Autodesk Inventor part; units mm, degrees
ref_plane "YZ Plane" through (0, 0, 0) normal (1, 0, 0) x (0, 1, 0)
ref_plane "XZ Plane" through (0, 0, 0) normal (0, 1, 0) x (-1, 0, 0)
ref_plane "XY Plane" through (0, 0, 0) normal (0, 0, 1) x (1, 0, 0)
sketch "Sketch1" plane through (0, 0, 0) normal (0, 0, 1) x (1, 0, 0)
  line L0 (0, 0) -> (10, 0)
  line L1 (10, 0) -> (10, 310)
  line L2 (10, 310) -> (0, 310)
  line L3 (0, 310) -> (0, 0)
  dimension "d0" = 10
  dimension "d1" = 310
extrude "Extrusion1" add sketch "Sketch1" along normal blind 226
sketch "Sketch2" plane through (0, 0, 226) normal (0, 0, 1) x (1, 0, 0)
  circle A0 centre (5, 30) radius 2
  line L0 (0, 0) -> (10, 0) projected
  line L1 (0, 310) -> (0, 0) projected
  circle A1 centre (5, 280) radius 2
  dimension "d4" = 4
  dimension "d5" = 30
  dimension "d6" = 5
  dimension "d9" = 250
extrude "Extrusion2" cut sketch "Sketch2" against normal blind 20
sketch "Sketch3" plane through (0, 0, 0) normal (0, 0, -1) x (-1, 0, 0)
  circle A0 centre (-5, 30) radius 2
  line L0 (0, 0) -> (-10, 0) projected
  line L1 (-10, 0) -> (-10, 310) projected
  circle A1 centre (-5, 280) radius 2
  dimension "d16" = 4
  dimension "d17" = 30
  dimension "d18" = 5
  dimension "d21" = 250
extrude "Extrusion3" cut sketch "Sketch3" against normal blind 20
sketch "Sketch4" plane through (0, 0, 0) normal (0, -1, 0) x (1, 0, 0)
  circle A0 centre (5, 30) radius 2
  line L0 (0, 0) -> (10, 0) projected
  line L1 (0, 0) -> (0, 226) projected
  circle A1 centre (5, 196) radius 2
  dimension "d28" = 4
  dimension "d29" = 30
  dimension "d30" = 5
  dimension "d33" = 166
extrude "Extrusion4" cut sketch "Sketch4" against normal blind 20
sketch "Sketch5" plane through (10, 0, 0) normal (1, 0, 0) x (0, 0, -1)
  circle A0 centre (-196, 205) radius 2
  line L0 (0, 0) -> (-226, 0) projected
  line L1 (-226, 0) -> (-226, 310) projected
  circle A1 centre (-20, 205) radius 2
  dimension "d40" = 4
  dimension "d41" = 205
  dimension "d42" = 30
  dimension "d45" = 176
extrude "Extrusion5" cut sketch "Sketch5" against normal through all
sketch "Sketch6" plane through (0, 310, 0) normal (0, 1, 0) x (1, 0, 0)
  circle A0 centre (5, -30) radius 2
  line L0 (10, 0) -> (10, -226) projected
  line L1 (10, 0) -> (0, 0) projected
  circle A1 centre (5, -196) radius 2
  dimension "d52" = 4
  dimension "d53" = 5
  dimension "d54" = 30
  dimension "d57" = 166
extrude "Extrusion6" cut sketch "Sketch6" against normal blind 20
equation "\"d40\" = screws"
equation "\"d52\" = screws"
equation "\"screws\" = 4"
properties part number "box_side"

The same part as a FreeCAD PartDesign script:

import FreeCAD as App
import Part
import Sketcher

V = App.Vector


def add_polygon(sketch, points):
    """Adds a closed chain of lines whose ends are joined by coincident constraints."""
    first, n = sketch.GeometryCount, len(points)
    for a, b in zip(points, points[1:] + points[:1]):
        sketch.addGeometry(Part.LineSegment(App.Vector(*a, 0), App.Vector(*b, 0)), False)
    for i in range(n):
        sketch.addConstraint(Sketcher.Constraint("Coincident", first + i, 2, first + (i + 1) % n, 1))

doc = App.newDocument("Part")
params = doc.addObject("Spreadsheet::Sheet", "Params")
for row, (alias, value) in enumerate([
    ("sketch1_width", "10 mm"),
    ("sketch1_height", "310 mm"),
    ("pad1_length", "226 mm"),
    ("sketch2_diameter", "4 mm"),
    ("pocket1_length", "20 mm"),
    ("sketch3_diameter", "4 mm"),
    ("pocket2_length", "20 mm"),
    ("sketch4_diameter", "4 mm"),
    ("pocket3_length", "20 mm"),
    ("sketch5_diameter", "4 mm"),
    ("sketch6_diameter", "4 mm"),
    ("pocket5_length", "20 mm"),
], start=1):
    params.set(f"A{row}", alias)
    params.set(f"B{row}", "=" + value)
    params.setAlias(f"B{row}", alias)

body = doc.addObject("PartDesign::Body", "Body")

# Sketch on XY plane
sketch1 = body.newObject("Sketcher::SketchObject", "Sketch")
sketch1.AttachmentSupport = (doc.getObject("XY_Plane"), [""])
sketch1.MapMode = "FlatFace"
add_polygon(sketch1, [(0, 310), (0, 0), (10, 0), (10, 310)])  # lines 0-3
sketch1.addConstraint([
    Sketcher.Constraint("Vertical", 0),
    Sketcher.Constraint("Horizontal", 1),
    Sketcher.Constraint("Vertical", 2),
    Sketcher.Constraint("Horizontal", 3),
    Sketcher.Constraint("Coincident", 0, 2, -1, 1),
    Sketcher.Constraint("DistanceX", 1, 1, 1, 2, 10.0),
    Sketcher.Constraint("DistanceY", 0, 2, 0, 1, 310.0),
])
sketch1.setExpression("Constraints[9]", "Params.sketch1_width")
sketch1.setExpression("Constraints[10]", "Params.sketch1_height")
pad1 = body.newObject("PartDesign::Pad", "Pad")
pad1.Profile = sketch1
pad1.setExpression("Length", "Params.pad1_length")

# Sketch on XY plane
sketch2 = body.newObject("Sketcher::SketchObject", "Sketch001")
sketch2.AttachmentSupport = (doc.getObject("XY_Plane"), [""])
sketch2.MapMode = "FlatFace"
sketch2.AttachmentOffset = App.Placement(V(0, 0, 226), App.Rotation())
sketch2.addGeometry([
    Part.Circle(V(5, 30, 0), V(0, 0, 1), 2),
    Part.Circle(V(5, 280, 0), V(0, 0, 1), 2),
], False)
sketch2.addConstraint([
    Sketcher.Constraint("Equal", 0, 1),
    Sketcher.Constraint("Vertical", 0, 3, 1, 3),
    Sketcher.Constraint("Diameter", 0, 4.0),
    Sketcher.Constraint("DistanceX", -1, 1, 0, 3, 5.0),
    Sketcher.Constraint("DistanceY", -1, 1, 0, 3, 30.0),
    Sketcher.Constraint("DistanceY", 0, 3, 1, 3, 250.0),
])
sketch2.setExpression("Constraints[2]", "Params.sketch2_diameter")
pocket1 = body.newObject("PartDesign::Pocket", "Pocket")
pocket1.Profile = sketch2
pocket1.setExpression("Length", "Params.pocket1_length")

# Sketch on XY plane
sketch3 = body.newObject("Sketcher::SketchObject", "Sketch002")
sketch3.AttachmentSupport = (doc.getObject("XY_Plane"), [""])
sketch3.MapMode = "FlatFace"
sketch3.addGeometry([
    Part.Circle(V(5, 30, 0), V(0, 0, 1), 2),
    Part.Circle(V(5, 280, 0), V(0, 0, 1), 2),
], False)
sketch3.addConstraint([
    Sketcher.Constraint("Equal", 0, 1),
    Sketcher.Constraint("Vertical", 0, 3, 1, 3),
    Sketcher.Constraint("Diameter", 0, 4.0),
    Sketcher.Constraint("DistanceX", -1, 1, 0, 3, 5.0),
    Sketcher.Constraint("DistanceY", -1, 1, 0, 3, 30.0),
    Sketcher.Constraint("DistanceY", 0, 3, 1, 3, 250.0),
])
sketch3.setExpression("Constraints[2]", "Params.sketch3_diameter")
pocket2 = body.newObject("PartDesign::Pocket", "Pocket001")
pocket2.Profile = sketch3
pocket2.setExpression("Length", "Params.pocket2_length")
pocket2.Reversed = True

# Sketch on XZ plane
sketch4 = body.newObject("Sketcher::SketchObject", "Sketch003")
sketch4.AttachmentSupport = (doc.getObject("XZ_Plane"), [""])
sketch4.MapMode = "FlatFace"
sketch4.addGeometry([
    Part.Circle(V(5, 30, 0), V(0, 0, 1), 2),
    Part.Circle(V(5, 196, 0), V(0, 0, 1), 2),
], False)
sketch4.addConstraint([
    Sketcher.Constraint("Equal", 0, 1),
    Sketcher.Constraint("Vertical", 0, 3, 1, 3),
    Sketcher.Constraint("Diameter", 0, 4.0),
    Sketcher.Constraint("DistanceX", -1, 1, 0, 3, 5.0),
    Sketcher.Constraint("DistanceY", -1, 1, 0, 3, 30.0),
    Sketcher.Constraint("DistanceY", 0, 3, 1, 3, 166.0),
])
sketch4.setExpression("Constraints[2]", "Params.sketch4_diameter")
pocket3 = body.newObject("PartDesign::Pocket", "Pocket002")
pocket3.Profile = sketch4
pocket3.setExpression("Length", "Params.pocket3_length")

# Sketch on YZ plane
sketch5 = body.newObject("Sketcher::SketchObject", "Sketch004")
sketch5.AttachmentSupport = (doc.getObject("YZ_Plane"), [""])
sketch5.MapMode = "FlatFace"
sketch5.AttachmentOffset = App.Placement(V(0, 0, 10), App.Rotation())
sketch5.addGeometry([
    Part.Circle(V(205, 196, 0), V(0, 0, 1), 2),
    Part.Circle(V(205, 20, 0), V(0, 0, 1), 2),
], False)
sketch5.addConstraint([
    Sketcher.Constraint("Equal", 0, 1),
    Sketcher.Constraint("Vertical", 0, 3, 1, 3),
    Sketcher.Constraint("Diameter", 0, 4.0),
    Sketcher.Constraint("DistanceX", -1, 1, 0, 3, 205.0),
    Sketcher.Constraint("DistanceY", 1, 3, 0, 3, 176.0),
    Sketcher.Constraint("DistanceY", -1, 1, 0, 3, 196.0),
])
sketch5.setExpression("Constraints[2]", "Params.sketch5_diameter")
pocket4 = body.newObject("PartDesign::Pocket", "Pocket003")
pocket4.Profile = sketch5
pocket4.Type = "ThroughAll"

# Sketch on XZ plane
sketch6 = body.newObject("Sketcher::SketchObject", "Sketch005")
sketch6.AttachmentSupport = (doc.getObject("XZ_Plane"), [""])
sketch6.MapMode = "FlatFace"
sketch6.AttachmentOffset = App.Placement(V(0, 0, -310), App.Rotation())
sketch6.addGeometry([
    Part.Circle(V(5, 30, 0), V(0, 0, 1), 2),
    Part.Circle(V(5, 196, 0), V(0, 0, 1), 2),
], False)
sketch6.addConstraint([
    Sketcher.Constraint("Equal", 0, 1),
    Sketcher.Constraint("Vertical", 0, 3, 1, 3),
    Sketcher.Constraint("Diameter", 0, 4.0),
    Sketcher.Constraint("DistanceX", -1, 1, 0, 3, 5.0),
    Sketcher.Constraint("DistanceY", -1, 1, 0, 3, 30.0),
    Sketcher.Constraint("DistanceY", 0, 3, 1, 3, 166.0),
])
sketch6.setExpression("Constraints[2]", "Params.sketch6_diameter")
pocket5 = body.newObject("PartDesign::Pocket", "Pocket004")
pocket5.Profile = sketch6
pocket5.setExpression("Length", "Params.pocket5_length")
pocket5.Reversed = True

doc.recompute()
